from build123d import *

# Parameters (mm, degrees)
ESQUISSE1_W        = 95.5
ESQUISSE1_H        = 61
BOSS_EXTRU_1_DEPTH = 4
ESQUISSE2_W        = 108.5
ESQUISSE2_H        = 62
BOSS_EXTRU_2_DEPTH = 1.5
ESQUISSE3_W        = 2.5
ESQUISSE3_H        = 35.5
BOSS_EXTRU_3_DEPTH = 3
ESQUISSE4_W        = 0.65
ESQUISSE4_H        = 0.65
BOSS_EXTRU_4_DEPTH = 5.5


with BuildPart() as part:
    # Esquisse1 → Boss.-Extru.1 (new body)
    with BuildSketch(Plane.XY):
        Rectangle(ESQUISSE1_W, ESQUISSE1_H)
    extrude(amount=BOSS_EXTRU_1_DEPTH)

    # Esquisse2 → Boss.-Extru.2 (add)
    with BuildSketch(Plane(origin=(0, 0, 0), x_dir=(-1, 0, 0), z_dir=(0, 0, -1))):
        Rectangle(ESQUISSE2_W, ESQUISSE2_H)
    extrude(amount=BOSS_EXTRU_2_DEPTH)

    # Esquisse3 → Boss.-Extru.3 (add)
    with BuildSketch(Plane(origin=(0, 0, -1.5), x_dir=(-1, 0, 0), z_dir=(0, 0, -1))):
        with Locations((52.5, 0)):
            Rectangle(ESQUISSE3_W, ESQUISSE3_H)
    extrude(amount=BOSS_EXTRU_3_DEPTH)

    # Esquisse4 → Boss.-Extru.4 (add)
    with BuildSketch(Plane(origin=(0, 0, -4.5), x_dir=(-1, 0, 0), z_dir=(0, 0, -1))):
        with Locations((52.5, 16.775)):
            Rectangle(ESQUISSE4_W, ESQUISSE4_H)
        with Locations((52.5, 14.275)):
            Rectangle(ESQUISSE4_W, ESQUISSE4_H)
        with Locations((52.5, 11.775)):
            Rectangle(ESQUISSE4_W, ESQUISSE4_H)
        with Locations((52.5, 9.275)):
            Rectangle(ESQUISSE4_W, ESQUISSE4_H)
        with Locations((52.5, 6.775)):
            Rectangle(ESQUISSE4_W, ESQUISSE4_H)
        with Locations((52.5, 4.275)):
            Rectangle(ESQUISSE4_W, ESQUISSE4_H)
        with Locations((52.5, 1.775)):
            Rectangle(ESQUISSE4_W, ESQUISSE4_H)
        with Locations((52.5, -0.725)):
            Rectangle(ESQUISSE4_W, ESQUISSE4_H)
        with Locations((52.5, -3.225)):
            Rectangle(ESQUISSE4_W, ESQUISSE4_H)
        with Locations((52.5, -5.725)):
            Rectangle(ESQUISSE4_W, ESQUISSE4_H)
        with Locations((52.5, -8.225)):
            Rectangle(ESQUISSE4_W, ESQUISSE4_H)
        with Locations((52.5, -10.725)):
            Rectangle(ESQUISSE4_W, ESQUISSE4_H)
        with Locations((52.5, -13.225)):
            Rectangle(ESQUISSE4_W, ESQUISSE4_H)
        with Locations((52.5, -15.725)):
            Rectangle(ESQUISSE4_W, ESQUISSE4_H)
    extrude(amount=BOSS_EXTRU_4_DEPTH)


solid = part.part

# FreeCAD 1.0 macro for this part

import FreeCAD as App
import Part
import Sketcher
from FreeCAD import Vector

doc = App.newDocument("Part")
params = doc.addObject("Spreadsheet::Sheet", "Params")
for row, (alias, value) in enumerate([
    ("sketch1_height", "61 mm"),
    ("sketch1_width", "95.5 mm"),
    ("pad1_length", "4 mm"),
    ("sketch2_height", "62 mm"),
    ("sketch2_width", "108.5 mm"),
    ("pad2_length", "1.5 mm"),
    ("sketch3_width", "2.5 mm"),
    ("sketch3_height", "35.5 mm"),
    ("pad3_length", "3 mm"),
    ("sketch4_width", "0.65 mm"),
    ("pad4_length", "5.5 mm"),
], start=1):
    params.set(f"A{row}", alias)
    params.set(f"B{row}", "=" + value)
    params.setAlias(f"B{row}", alias)

body = doc.addObject("PartDesign::Body", "Body")

sketch1 = body.newObject("Sketcher::SketchObject", "Sketch")
sketch1.AttachmentSupport = (doc.getObject("XY_Plane"), [""])
sketch1.MapMode = "FlatFace"
sketch1.addGeometry([
    Part.LineSegment(Vector(-48, 30, 0), Vector(-48, -30, 0)),
    Part.LineSegment(Vector(-48, -30, 0), Vector(48, -30, 0)),
    Part.LineSegment(Vector(48, -30, 0), Vector(48, 30, 0)),
    Part.LineSegment(Vector(48, 30, 0), Vector(-48, 30, 0)),
], False)
sketch1.addConstraint([
    Sketcher.Constraint("Coincident", 0, 2, 1, 1),
    Sketcher.Constraint("Coincident", 1, 2, 2, 1),
    Sketcher.Constraint("Coincident", 2, 2, 3, 1),
    Sketcher.Constraint("Coincident", 3, 2, 0, 1),
    Sketcher.Constraint("Vertical", 0),
    Sketcher.Constraint("Horizontal", 1),
    Sketcher.Constraint("Vertical", 2),
    Sketcher.Constraint("Horizontal", 3),
    Sketcher.Constraint("Symmetric", 0, 2, 2, 2, -1, 1),
    Sketcher.Constraint("DistanceY", 0, 2, 0, 1, 61.0),
    Sketcher.Constraint("DistanceX", 1, 1, 1, 2, 95.5),
])
sketch1.setExpression("Constraints[9]", "Params.sketch1_height")
sketch1.setExpression("Constraints[10]", "Params.sketch1_width")
pad1 = body.newObject("PartDesign::Pad", "Pad")
pad1.Profile = sketch1
pad1.setExpression("Length", "Params.pad1_length")

sketch2 = body.newObject("Sketcher::SketchObject", "Sketch001")
sketch2.AttachmentSupport = (doc.getObject("XY_Plane"), [""])
sketch2.MapMode = "FlatFace"
sketch2.addGeometry([
    Part.LineSegment(Vector(54, 31, 0), Vector(54, -31, 0)),
    Part.LineSegment(Vector(54, -31, 0), Vector(-54, -31, 0)),
    Part.LineSegment(Vector(-54, -31, 0), Vector(-54, 31, 0)),
    Part.LineSegment(Vector(-54, 31, 0), Vector(54, 31, 0)),
], False)
sketch2.addConstraint([
    Sketcher.Constraint("Coincident", 0, 2, 1, 1),
    Sketcher.Constraint("Coincident", 1, 2, 2, 1),
    Sketcher.Constraint("Coincident", 2, 2, 3, 1),
    Sketcher.Constraint("Coincident", 3, 2, 0, 1),
    Sketcher.Constraint("Vertical", 0),
    Sketcher.Constraint("Horizontal", 1),
    Sketcher.Constraint("Vertical", 2),
    Sketcher.Constraint("Horizontal", 3),
    Sketcher.Constraint("Symmetric", 0, 2, 2, 2, -1, 1),
    Sketcher.Constraint("DistanceY", 0, 2, 0, 1, 62.0),
    Sketcher.Constraint("DistanceX", 1, 2, 1, 1, 108.5),
])
sketch2.setExpression("Constraints[9]", "Params.sketch2_height")
sketch2.setExpression("Constraints[10]", "Params.sketch2_width")
pad2 = body.newObject("PartDesign::Pad", "Pad001")
pad2.Profile = sketch2
pad2.setExpression("Length", "Params.pad2_length")
pad2.Reversed = True

sketch3 = body.newObject("Sketcher::SketchObject", "Sketch002")
sketch3.AttachmentSupport = (doc.getObject("XY_Plane"), [""])
sketch3.MapMode = "FlatFace"
sketch3.AttachmentOffset = App.Placement(Vector(0, 0, -1.5), App.Rotation())
sketch3.addGeometry([
    Part.LineSegment(Vector(-51.2, 17.8, 0), Vector(-51.2, -17.8, 0)),
    Part.LineSegment(Vector(-51.2, -17.8, 0), Vector(-53.8, -17.8, 0)),
    Part.LineSegment(Vector(-53.8, -17.8, 0), Vector(-53.8, 17.8, 0)),
    Part.LineSegment(Vector(-53.8, 17.8, 0), Vector(-51.2, 17.8, 0)),
], False)
sketch3.addConstraint([
    Sketcher.Constraint("Coincident", 0, 2, 1, 1),
    Sketcher.Constraint("Coincident", 1, 2, 2, 1),
    Sketcher.Constraint("Coincident", 2, 2, 3, 1),
    Sketcher.Constraint("Coincident", 3, 2, 0, 1),
    Sketcher.Constraint("Vertical", 0),
    Sketcher.Constraint("Horizontal", 1),
    Sketcher.Constraint("Vertical", 2),
    Sketcher.Constraint("Horizontal", 3),
    Sketcher.Constraint("DistanceX", 1, 2, 1, 1, 2.5),
    Sketcher.Constraint("DistanceY", 0, 2, 0, 1, 35.5),
    Sketcher.Constraint("DistanceX", 0, 2, -1, 1, 51.25),
    Sketcher.Constraint("DistanceY", 0, 2, -1, 1, 17.75),
])
sketch3.setExpression("Constraints[8]", "Params.sketch3_width")
sketch3.setExpression("Constraints[9]", "Params.sketch3_height")
pad3 = body.newObject("PartDesign::Pad", "Pad002")
pad3.Profile = sketch3
pad3.setExpression("Length", "Params.pad3_length")
pad3.Reversed = True

sketch4 = body.newObject("Sketcher::SketchObject", "Sketch003")
sketch4.AttachmentSupport = (doc.getObject("XY_Plane"), [""])
sketch4.MapMode = "FlatFace"
sketch4.AttachmentOffset = App.Placement(Vector(0, 0, -4.5), App.Rotation())
sketch4.addGeometry([
    Part.LineSegment(Vector(-52.2, 17.1, 0), Vector(-52.2, 16.4, 0)),
    Part.LineSegment(Vector(-52.2, 16.4, 0), Vector(-52.8, 16.4, 0)),
    Part.LineSegment(Vector(-52.8, 16.4, 0), Vector(-52.8, 17.1, 0)),
    Part.LineSegment(Vector(-52.8, 17.1, 0), Vector(-52.2, 17.1, 0)),
    Part.LineSegment(Vector(-52.2, 14.6, 0), Vector(-52.2, 13.9, 0)),
    Part.LineSegment(Vector(-52.2, 13.9, 0), Vector(-52.8, 13.9, 0)),
    Part.LineSegment(Vector(-52.8, 13.9, 0), Vector(-52.8, 14.6, 0)),
    Part.LineSegment(Vector(-52.8, 14.6, 0), Vector(-52.2, 14.6, 0)),
    Part.LineSegment(Vector(-52.2, 12.1, 0), Vector(-52.2, 11.4, 0)),
    Part.LineSegment(Vector(-52.2, 11.4, 0), Vector(-52.8, 11.4, 0)),
    Part.LineSegment(Vector(-52.8, 11.4, 0), Vector(-52.8, 12.1, 0)),
    Part.LineSegment(Vector(-52.8, 12.1, 0), Vector(-52.2, 12.1, 0)),
    Part.LineSegment(Vector(-52.2, 9.6, 0), Vector(-52.2, 8.9, 0)),
    Part.LineSegment(Vector(-52.2, 8.9, 0), Vector(-52.8, 8.9, 0)),
    Part.LineSegment(Vector(-52.8, 8.9, 0), Vector(-52.8, 9.6, 0)),
    Part.LineSegment(Vector(-52.8, 9.6, 0), Vector(-52.2, 9.6, 0)),
    Part.LineSegment(Vector(-52.2, 7.1, 0), Vector(-52.2, 6.5, 0)),
    Part.LineSegment(Vector(-52.2, 6.5, 0), Vector(-52.8, 6.5, 0)),
    Part.LineSegment(Vector(-52.8, 6.5, 0), Vector(-52.8, 7.1, 0)),
    Part.LineSegment(Vector(-52.8, 7.1, 0), Vector(-52.2, 7.1, 0)),
    Part.LineSegment(Vector(-52.2, 4.6, 0), Vector(-52.2, 4, 0)),
    Part.LineSegment(Vector(-52.2, 4, 0), Vector(-52.8, 4, 0)),
    Part.LineSegment(Vector(-52.8, 4, 0), Vector(-52.8, 4.6, 0)),
    Part.LineSegment(Vector(-52.8, 4.6, 0), Vector(-52.2, 4.6, 0)),
    Part.LineSegment(Vector(-52.2, 2.1, 0), Vector(-52.2, 1.4, 0)),
    Part.LineSegment(Vector(-52.2, 1.4, 0), Vector(-52.8, 1.4, 0)),
    Part.LineSegment(Vector(-52.8, 1.4, 0), Vector(-52.8, 2.1, 0)),
    Part.LineSegment(Vector(-52.8, 2.1, 0), Vector(-52.2, 2.1, 0)),
    Part.LineSegment(Vector(-52.2, -0.4, 0), Vector(-52.2, -1.1, 0)),
    Part.LineSegment(Vector(-52.2, -1.1, 0), Vector(-52.8, -1.1, 0)),
    Part.LineSegment(Vector(-52.8, -1.1, 0), Vector(-52.8, -0.4, 0)),
    Part.LineSegment(Vector(-52.8, -0.4, 0), Vector(-52.2, -0.4, 0)),
    Part.LineSegment(Vector(-52.2, -2.9, 0), Vector(-52.2, -3.5, 0)),
    Part.LineSegment(Vector(-52.2, -3.5, 0), Vector(-52.8, -3.5, 0)),
    Part.LineSegment(Vector(-52.8, -3.5, 0), Vector(-52.8, -2.9, 0)),
    Part.LineSegment(Vector(-52.8, -2.9, 0), Vector(-52.2, -2.9, 0)),
    Part.LineSegment(Vector(-52.2, -5.4, 0), Vector(-52.2, -6, 0)),
    Part.LineSegment(Vector(-52.2, -6, 0), Vector(-52.8, -6, 0)),
    Part.LineSegment(Vector(-52.8, -6, 0), Vector(-52.8, -5.4, 0)),
    Part.LineSegment(Vector(-52.8, -5.4, 0), Vector(-52.2, -5.4, 0)),
    Part.LineSegment(Vector(-52.2, -7.9, 0), Vector(-52.2, -8.6, 0)),
    Part.LineSegment(Vector(-52.2, -8.6, 0), Vector(-52.8, -8.6, 0)),
    Part.LineSegment(Vector(-52.8, -8.6, 0), Vector(-52.8, -7.9, 0)),
    Part.LineSegment(Vector(-52.8, -7.9, 0), Vector(-52.2, -7.9, 0)),
    Part.LineSegment(Vector(-52.2, -10.4, 0), Vector(-52.2, -11.1, 0)),
    Part.LineSegment(Vector(-52.2, -11.1, 0), Vector(-52.8, -11.1, 0)),
    Part.LineSegment(Vector(-52.8, -11.1, 0), Vector(-52.8, -10.4, 0)),
    Part.LineSegment(Vector(-52.8, -10.4, 0), Vector(-52.2, -10.4, 0)),
    Part.LineSegment(Vector(-52.2, -12.9, 0), Vector(-52.2, -13.6, 0)),
    Part.LineSegment(Vector(-52.2, -13.6, 0), Vector(-52.8, -13.6, 0)),
    Part.LineSegment(Vector(-52.8, -13.6, 0), Vector(-52.8, -12.9, 0)),
    Part.LineSegment(Vector(-52.8, -12.9, 0), Vector(-52.2, -12.9, 0)),
    Part.LineSegment(Vector(-52.2, -15.4, 0), Vector(-52.2, -16.1, 0)),
    Part.LineSegment(Vector(-52.2, -16.1, 0), Vector(-52.8, -16.1, 0)),
    Part.LineSegment(Vector(-52.8, -16.1, 0), Vector(-52.8, -15.4, 0)),
    Part.LineSegment(Vector(-52.8, -15.4, 0), Vector(-52.2, -15.4, 0)),
], False)
sketch4.addConstraint([
    Sketcher.Constraint("Coincident", 0, 2, 1, 1),
    Sketcher.Constraint("Coincident", 1, 2, 2, 1),
    Sketcher.Constraint("Coincident", 2, 2, 3, 1),
    Sketcher.Constraint("Coincident", 3, 2, 0, 1),
    Sketcher.Constraint("Coincident", 4, 2, 5, 1),
    Sketcher.Constraint("Coincident", 5, 2, 6, 1),
    Sketcher.Constraint("Coincident", 6, 2, 7, 1),
    Sketcher.Constraint("Coincident", 7, 2, 4, 1),
    Sketcher.Constraint("Coincident", 8, 2, 9, 1),
    Sketcher.Constraint("Coincident", 9, 2, 10, 1),
    Sketcher.Constraint("Coincident", 10, 2, 11, 1),
    Sketcher.Constraint("Coincident", 11, 2, 8, 1),
    Sketcher.Constraint("Coincident", 12, 2, 13, 1),
    Sketcher.Constraint("Coincident", 13, 2, 14, 1),
    Sketcher.Constraint("Coincident", 14, 2, 15, 1),
    Sketcher.Constraint("Coincident", 15, 2, 12, 1),
    Sketcher.Constraint("Coincident", 16, 2, 17, 1),
    Sketcher.Constraint("Coincident", 17, 2, 18, 1),
    Sketcher.Constraint("Coincident", 18, 2, 19, 1),
    Sketcher.Constraint("Coincident", 19, 2, 16, 1),
    Sketcher.Constraint("Coincident", 20, 2, 21, 1),
    Sketcher.Constraint("Coincident", 21, 2, 22, 1),
    Sketcher.Constraint("Coincident", 22, 2, 23, 1),
    Sketcher.Constraint("Coincident", 23, 2, 20, 1),
    Sketcher.Constraint("Coincident", 24, 2, 25, 1),
    Sketcher.Constraint("Coincident", 25, 2, 26, 1),
    Sketcher.Constraint("Coincident", 26, 2, 27, 1),
    Sketcher.Constraint("Coincident", 27, 2, 24, 1),
    Sketcher.Constraint("Coincident", 28, 2, 29, 1),
    Sketcher.Constraint("Coincident", 29, 2, 30, 1),
    Sketcher.Constraint("Coincident", 30, 2, 31, 1),
    Sketcher.Constraint("Coincident", 31, 2, 28, 1),
    Sketcher.Constraint("Coincident", 32, 2, 33, 1),
    Sketcher.Constraint("Coincident", 33, 2, 34, 1),
    Sketcher.Constraint("Coincident", 34, 2, 35, 1),
    Sketcher.Constraint("Coincident", 35, 2, 32, 1),
    Sketcher.Constraint("Coincident", 36, 2, 37, 1),
    Sketcher.Constraint("Coincident", 37, 2, 38, 1),
    Sketcher.Constraint("Coincident", 38, 2, 39, 1),
    Sketcher.Constraint("Coincident", 39, 2, 36, 1),
    Sketcher.Constraint("Coincident", 40, 2, 41, 1),
    Sketcher.Constraint("Coincident", 41, 2, 42, 1),
    Sketcher.Constraint("Coincident", 42, 2, 43, 1),
    Sketcher.Constraint("Coincident", 43, 2, 40, 1),
    Sketcher.Constraint("Coincident", 44, 2, 45, 1),
    Sketcher.Constraint("Coincident", 45, 2, 46, 1),
    Sketcher.Constraint("Coincident", 46, 2, 47, 1),
    Sketcher.Constraint("Coincident", 47, 2, 44, 1),
    Sketcher.Constraint("Coincident", 48, 2, 49, 1),
    Sketcher.Constraint("Coincident", 49, 2, 50, 1),
    Sketcher.Constraint("Coincident", 50, 2, 51, 1),
    Sketcher.Constraint("Coincident", 51, 2, 48, 1),
    Sketcher.Constraint("Coincident", 52, 2, 53, 1),
    Sketcher.Constraint("Coincident", 53, 2, 54, 1),
    Sketcher.Constraint("Coincident", 54, 2, 55, 1),
    Sketcher.Constraint("Coincident", 55, 2, 52, 1),
    Sketcher.Constraint("Vertical", 0),
    Sketcher.Constraint("Horizontal", 1),
    Sketcher.Constraint("Vertical", 2),
    Sketcher.Constraint("Horizontal", 3),
    Sketcher.Constraint("Vertical", 4),
    Sketcher.Constraint("Horizontal", 5),
    Sketcher.Constraint("Vertical", 6),
    Sketcher.Constraint("Horizontal", 7),
    Sketcher.Constraint("Vertical", 8),
    Sketcher.Constraint("Horizontal", 9),
    Sketcher.Constraint("Vertical", 10),
    Sketcher.Constraint("Horizontal", 11),
    Sketcher.Constraint("Vertical", 12),
    Sketcher.Constraint("Horizontal", 13),
    Sketcher.Constraint("Vertical", 14),
    Sketcher.Constraint("Horizontal", 15),
    Sketcher.Constraint("Vertical", 16),
    Sketcher.Constraint("Horizontal", 17),
    Sketcher.Constraint("Vertical", 18),
    Sketcher.Constraint("Horizontal", 19),
    Sketcher.Constraint("Vertical", 20),
    Sketcher.Constraint("Horizontal", 21),
    Sketcher.Constraint("Vertical", 22),
    Sketcher.Constraint("Horizontal", 23),
    Sketcher.Constraint("Vertical", 24),
    Sketcher.Constraint("Horizontal", 25),
    Sketcher.Constraint("Vertical", 26),
    Sketcher.Constraint("Horizontal", 27),
    Sketcher.Constraint("Vertical", 28),
    Sketcher.Constraint("Horizontal", 29),
    Sketcher.Constraint("Vertical", 30),
    Sketcher.Constraint("Horizontal", 31),
    Sketcher.Constraint("Vertical", 32),
    Sketcher.Constraint("Horizontal", 33),
    Sketcher.Constraint("Vertical", 34),
    Sketcher.Constraint("Horizontal", 35),
    Sketcher.Constraint("Vertical", 36),
    Sketcher.Constraint("Horizontal", 37),
    Sketcher.Constraint("Vertical", 38),
    Sketcher.Constraint("Horizontal", 39),
    Sketcher.Constraint("Vertical", 40),
    Sketcher.Constraint("Horizontal", 41),
    Sketcher.Constraint("Vertical", 42),
    Sketcher.Constraint("Horizontal", 43),
    Sketcher.Constraint("Vertical", 44),
    Sketcher.Constraint("Horizontal", 45),
    Sketcher.Constraint("Vertical", 46),
    Sketcher.Constraint("Horizontal", 47),
    Sketcher.Constraint("Vertical", 48),
    Sketcher.Constraint("Horizontal", 49),
    Sketcher.Constraint("Vertical", 50),
    Sketcher.Constraint("Horizontal", 51),
    Sketcher.Constraint("Vertical", 52),
    Sketcher.Constraint("Horizontal", 53),
    Sketcher.Constraint("Vertical", 54),
    Sketcher.Constraint("Horizontal", 55),
    Sketcher.Constraint("Vertical", 3, 2, 4, 2),
    Sketcher.Constraint("Vertical", 2, 2, 5, 2),
    Sketcher.Constraint("Vertical", 7, 2, 8, 2),
    Sketcher.Constraint("Vertical", 6, 2, 9, 2),
    Sketcher.Constraint("Vertical", 11, 2, 12, 2),
    Sketcher.Constraint("Vertical", 10, 2, 13, 2),
    Sketcher.Constraint("Vertical", 15, 2, 16, 2),
    Sketcher.Constraint("Vertical", 14, 2, 17, 2),
    Sketcher.Constraint("Vertical", 19, 2, 20, 2),
    Sketcher.Constraint("Vertical", 18, 2, 21, 2),
    Sketcher.Constraint("Vertical", 23, 2, 24, 2),
    Sketcher.Constraint("Vertical", 22, 2, 25, 2),
    Sketcher.Constraint("Vertical", 27, 2, 28, 2),
    Sketcher.Constraint("Vertical", 26, 2, 29, 2),
    Sketcher.Constraint("Vertical", 31, 2, 32, 2),
    Sketcher.Constraint("Vertical", 30, 2, 33, 2),
    Sketcher.Constraint("Vertical", 35, 2, 36, 2),
    Sketcher.Constraint("Vertical", 34, 2, 37, 2),
    Sketcher.Constraint("Vertical", 39, 2, 40, 2),
    Sketcher.Constraint("Vertical", 38, 2, 41, 2),
    Sketcher.Constraint("Vertical", 43, 2, 44, 2),
    Sketcher.Constraint("Vertical", 42, 2, 45, 2),
    Sketcher.Constraint("Vertical", 47, 2, 48, 2),
    Sketcher.Constraint("Vertical", 46, 2, 49, 2),
    Sketcher.Constraint("Vertical", 51, 2, 52, 2),
    Sketcher.Constraint("Vertical", 50, 2, 53, 2),
    Sketcher.Constraint("Equal", 55, 0),
    Sketcher.Constraint("Equal", 2, 4),
    Sketcher.Constraint("Equal", 6, 8),
    Sketcher.Constraint("Equal", 10, 12),
    Sketcher.Constraint("Equal", 14, 16),
    Sketcher.Constraint("Equal", 18, 20),
    Sketcher.Constraint("Equal", 22, 24),
    Sketcher.Constraint("Equal", 26, 28),
    Sketcher.Constraint("Equal", 30, 32),
    Sketcher.Constraint("Equal", 34, 36),
    Sketcher.Constraint("Equal", 38, 40),
    Sketcher.Constraint("Equal", 42, 44),
    Sketcher.Constraint("Equal", 46, 48),
    Sketcher.Constraint("Equal", 50, 52),
    Sketcher.Constraint("DistanceY", 8, 2, 0, 2, 5.0),
    Sketcher.Constraint("DistanceY", 12, 2, 4, 2, 5.0),
    Sketcher.Constraint("DistanceY", 16, 2, 8, 2, 5.0),
    Sketcher.Constraint("DistanceY", 20, 2, 12, 2, 5.0),
    Sketcher.Constraint("DistanceY", 24, 2, 16, 2, 5.0),
    Sketcher.Constraint("DistanceY", 28, 2, 20, 2, 5.0),
    Sketcher.Constraint("DistanceY", 32, 2, 24, 2, 5.0),
    Sketcher.Constraint("DistanceY", 36, 2, 28, 2, 5.0),
    Sketcher.Constraint("DistanceY", 40, 2, 32, 2, 5.0),
    Sketcher.Constraint("DistanceY", 44, 2, 36, 2, 5.0),
    Sketcher.Constraint("DistanceY", 48, 2, 40, 2, 5.0),
    Sketcher.Constraint("DistanceY", 52, 2, 44, 2, 5.0),
    Sketcher.Constraint("DistanceX", 1, 2, 1, 1, 0.65),
    Sketcher.Constraint("DistanceY", -1, 1, 2, 2, 17.1),
    Sketcher.Constraint("DistanceY", -1, 1, 6, 2, 14.6),
    Sketcher.Constraint("DistanceX", 0, 2, -1, 1, 52.175),
])
sketch4.setExpression("Constraints[164]", "Params.sketch4_width")
pad4 = body.newObject("PartDesign::Pad", "Pad003")
pad4.Profile = sketch4
pad4.setExpression("Length", "Params.pad4_length")
pad4.Reversed = True

doc.recompute()
